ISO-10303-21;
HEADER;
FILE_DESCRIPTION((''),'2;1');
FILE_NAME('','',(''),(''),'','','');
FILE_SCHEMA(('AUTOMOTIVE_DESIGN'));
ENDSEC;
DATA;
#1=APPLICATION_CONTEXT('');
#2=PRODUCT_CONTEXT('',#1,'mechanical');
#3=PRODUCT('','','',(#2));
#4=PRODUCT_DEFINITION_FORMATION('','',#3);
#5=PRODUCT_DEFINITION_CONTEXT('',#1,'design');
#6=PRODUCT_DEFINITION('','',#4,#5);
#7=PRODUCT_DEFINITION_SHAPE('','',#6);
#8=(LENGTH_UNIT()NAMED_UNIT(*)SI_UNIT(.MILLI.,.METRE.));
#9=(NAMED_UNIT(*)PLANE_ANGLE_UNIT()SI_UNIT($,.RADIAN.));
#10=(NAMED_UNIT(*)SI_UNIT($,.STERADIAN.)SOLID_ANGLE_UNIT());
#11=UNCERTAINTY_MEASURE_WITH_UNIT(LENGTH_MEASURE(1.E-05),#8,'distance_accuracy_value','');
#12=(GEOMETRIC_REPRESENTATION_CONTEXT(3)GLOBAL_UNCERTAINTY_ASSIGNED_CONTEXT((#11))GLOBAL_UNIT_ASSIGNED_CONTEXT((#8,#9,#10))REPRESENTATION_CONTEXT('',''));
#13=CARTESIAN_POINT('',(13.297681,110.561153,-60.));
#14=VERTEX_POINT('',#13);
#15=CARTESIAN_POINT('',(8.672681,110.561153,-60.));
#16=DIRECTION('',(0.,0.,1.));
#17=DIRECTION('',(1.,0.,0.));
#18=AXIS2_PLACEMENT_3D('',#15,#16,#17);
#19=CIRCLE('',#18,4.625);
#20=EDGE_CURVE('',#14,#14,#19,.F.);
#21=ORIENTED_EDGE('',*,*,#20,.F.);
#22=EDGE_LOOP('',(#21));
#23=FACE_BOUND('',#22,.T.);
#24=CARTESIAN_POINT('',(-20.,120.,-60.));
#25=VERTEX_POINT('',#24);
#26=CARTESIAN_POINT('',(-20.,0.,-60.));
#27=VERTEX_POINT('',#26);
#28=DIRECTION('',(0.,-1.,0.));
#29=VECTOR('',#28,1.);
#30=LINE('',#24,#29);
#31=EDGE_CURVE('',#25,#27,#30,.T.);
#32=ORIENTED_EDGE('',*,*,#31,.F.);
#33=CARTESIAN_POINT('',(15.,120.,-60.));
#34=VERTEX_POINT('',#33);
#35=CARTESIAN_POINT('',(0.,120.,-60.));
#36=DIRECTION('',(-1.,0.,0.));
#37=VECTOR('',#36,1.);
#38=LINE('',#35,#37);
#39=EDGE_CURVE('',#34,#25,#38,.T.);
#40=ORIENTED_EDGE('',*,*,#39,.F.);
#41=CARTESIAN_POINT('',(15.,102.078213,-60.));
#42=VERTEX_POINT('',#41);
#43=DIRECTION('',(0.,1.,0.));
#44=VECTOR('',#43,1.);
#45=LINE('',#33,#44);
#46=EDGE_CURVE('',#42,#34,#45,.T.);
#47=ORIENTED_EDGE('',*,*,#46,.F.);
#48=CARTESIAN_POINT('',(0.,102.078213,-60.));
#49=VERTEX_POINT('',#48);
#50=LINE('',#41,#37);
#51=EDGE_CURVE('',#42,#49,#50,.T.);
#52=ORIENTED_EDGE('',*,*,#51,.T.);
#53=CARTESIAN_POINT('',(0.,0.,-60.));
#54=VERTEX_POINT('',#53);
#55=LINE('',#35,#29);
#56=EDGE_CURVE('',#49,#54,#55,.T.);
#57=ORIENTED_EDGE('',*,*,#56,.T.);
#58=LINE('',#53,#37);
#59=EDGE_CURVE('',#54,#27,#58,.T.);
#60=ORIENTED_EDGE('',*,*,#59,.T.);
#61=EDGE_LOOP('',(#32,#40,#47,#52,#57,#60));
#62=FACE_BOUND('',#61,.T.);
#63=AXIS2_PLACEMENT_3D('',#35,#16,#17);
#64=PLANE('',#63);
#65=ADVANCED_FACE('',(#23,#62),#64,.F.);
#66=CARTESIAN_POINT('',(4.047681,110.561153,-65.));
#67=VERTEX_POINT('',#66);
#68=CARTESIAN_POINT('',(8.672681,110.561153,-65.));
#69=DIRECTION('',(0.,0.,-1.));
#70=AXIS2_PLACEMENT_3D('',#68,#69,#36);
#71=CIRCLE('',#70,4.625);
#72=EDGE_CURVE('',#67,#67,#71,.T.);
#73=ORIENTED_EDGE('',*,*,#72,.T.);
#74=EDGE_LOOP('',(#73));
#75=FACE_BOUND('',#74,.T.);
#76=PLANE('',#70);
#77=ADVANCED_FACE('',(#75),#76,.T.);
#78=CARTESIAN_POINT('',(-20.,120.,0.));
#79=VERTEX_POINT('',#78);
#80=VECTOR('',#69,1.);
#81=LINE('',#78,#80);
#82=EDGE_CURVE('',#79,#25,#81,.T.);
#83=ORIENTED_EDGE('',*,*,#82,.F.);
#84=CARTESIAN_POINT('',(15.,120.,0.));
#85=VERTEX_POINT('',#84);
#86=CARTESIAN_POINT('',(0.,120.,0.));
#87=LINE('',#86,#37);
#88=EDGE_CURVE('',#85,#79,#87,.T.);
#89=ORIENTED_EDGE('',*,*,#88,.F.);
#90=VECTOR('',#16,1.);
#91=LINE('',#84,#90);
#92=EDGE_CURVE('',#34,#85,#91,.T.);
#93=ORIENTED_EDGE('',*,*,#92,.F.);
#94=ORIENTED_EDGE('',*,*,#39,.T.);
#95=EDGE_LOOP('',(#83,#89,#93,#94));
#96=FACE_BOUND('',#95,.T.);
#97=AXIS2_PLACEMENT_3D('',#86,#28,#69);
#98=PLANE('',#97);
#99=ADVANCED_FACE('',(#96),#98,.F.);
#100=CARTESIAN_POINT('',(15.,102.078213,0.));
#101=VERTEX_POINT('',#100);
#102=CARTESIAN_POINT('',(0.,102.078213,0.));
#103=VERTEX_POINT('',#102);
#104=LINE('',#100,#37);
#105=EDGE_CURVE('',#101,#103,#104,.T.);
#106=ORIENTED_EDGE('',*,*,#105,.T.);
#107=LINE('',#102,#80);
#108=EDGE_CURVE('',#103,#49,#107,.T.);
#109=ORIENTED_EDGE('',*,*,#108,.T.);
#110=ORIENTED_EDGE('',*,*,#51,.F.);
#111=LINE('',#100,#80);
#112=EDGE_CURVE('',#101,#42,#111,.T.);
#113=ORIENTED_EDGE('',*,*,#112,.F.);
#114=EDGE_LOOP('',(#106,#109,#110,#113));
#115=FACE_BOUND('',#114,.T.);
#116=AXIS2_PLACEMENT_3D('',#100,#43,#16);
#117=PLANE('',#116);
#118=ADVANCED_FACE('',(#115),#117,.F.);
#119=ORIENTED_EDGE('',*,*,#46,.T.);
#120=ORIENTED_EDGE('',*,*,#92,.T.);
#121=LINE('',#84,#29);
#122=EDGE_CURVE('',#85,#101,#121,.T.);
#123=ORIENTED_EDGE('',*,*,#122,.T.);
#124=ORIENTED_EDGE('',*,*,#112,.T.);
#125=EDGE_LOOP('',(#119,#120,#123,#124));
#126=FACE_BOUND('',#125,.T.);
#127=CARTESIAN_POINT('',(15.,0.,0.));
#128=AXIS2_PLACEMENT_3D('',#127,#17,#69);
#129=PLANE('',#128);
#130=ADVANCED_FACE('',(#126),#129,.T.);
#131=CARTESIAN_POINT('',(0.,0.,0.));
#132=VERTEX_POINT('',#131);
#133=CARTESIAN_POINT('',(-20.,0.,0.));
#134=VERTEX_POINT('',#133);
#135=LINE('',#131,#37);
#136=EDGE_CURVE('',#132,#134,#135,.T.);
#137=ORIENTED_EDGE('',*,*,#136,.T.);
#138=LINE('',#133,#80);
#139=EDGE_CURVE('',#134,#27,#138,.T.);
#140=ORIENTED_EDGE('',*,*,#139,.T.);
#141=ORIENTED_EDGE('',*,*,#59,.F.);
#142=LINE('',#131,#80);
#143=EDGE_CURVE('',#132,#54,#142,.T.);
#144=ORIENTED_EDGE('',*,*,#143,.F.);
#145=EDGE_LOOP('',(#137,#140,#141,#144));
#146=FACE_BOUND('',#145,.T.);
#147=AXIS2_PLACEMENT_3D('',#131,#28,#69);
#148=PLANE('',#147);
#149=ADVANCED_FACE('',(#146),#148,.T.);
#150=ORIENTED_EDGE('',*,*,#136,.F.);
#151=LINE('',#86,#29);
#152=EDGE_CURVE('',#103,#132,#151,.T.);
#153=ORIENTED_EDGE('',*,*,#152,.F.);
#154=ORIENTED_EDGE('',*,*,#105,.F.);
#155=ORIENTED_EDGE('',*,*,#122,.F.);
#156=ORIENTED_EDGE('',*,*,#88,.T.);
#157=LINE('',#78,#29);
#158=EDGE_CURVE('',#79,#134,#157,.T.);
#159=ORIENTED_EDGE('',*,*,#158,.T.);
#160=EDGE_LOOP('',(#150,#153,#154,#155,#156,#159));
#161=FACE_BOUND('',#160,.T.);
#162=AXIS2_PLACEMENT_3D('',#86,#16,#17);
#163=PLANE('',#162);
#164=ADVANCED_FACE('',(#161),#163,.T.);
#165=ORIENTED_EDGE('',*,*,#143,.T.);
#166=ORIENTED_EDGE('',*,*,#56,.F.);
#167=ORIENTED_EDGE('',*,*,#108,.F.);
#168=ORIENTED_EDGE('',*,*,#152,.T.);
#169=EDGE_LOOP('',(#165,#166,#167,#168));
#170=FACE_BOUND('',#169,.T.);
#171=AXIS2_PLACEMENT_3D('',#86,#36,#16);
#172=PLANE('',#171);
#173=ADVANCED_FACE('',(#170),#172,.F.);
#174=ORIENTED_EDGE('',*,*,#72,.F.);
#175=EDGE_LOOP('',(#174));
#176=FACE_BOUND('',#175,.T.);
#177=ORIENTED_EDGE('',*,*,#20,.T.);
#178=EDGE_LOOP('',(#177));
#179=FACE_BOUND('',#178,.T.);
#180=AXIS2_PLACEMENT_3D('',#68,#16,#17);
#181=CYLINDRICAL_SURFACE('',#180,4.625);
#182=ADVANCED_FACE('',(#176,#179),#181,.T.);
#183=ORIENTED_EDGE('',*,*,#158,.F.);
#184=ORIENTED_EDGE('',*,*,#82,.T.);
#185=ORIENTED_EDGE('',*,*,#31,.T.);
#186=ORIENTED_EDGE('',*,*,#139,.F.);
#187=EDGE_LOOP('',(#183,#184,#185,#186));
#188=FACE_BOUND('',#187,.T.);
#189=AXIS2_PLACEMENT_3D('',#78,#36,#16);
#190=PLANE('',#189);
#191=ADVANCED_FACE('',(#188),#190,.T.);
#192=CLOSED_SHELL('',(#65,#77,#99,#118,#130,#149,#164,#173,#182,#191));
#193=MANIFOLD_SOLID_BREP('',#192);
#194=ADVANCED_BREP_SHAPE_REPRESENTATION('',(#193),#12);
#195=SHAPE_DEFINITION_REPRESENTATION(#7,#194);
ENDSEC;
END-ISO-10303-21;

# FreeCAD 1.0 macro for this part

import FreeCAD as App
import Part
import Sketcher

V = App.Vector


def add_polygon(sketch, points):
    """Adds a closed chain of lines whose ends are joined by coincident constraints."""
    first, n = sketch.GeometryCount, len(points)
    for a, b in zip(points, points[1:] + points[:1]):
        sketch.addGeometry(Part.LineSegment(App.Vector(*a, 0), App.Vector(*b, 0)), False)
    for i in range(n):
        sketch.addConstraint(Sketcher.Constraint("Coincident", first + i, 2, first + (i + 1) % n, 1))

doc = App.newDocument("Part")
body = doc.addObject("PartDesign::Body", "Body")

sketch1 = doc.addObject("Sketcher::SketchObject", "Sketch")
body.addObject(sketch1)
sketch1.AttachmentSupport = (doc.XZ_Plane, [""])
sketch1.MapMode = "FlatFace"
add_polygon(sketch1, [(-20, -60), (-20, 0), (0, 0), (0, -60)])
sketch1.addConstraint([
    Sketcher.Constraint("Vertical", 0),
    Sketcher.Constraint("Horizontal", 1),
    Sketcher.Constraint("Vertical", 2),
    Sketcher.Constraint("Horizontal", 3),
    Sketcher.Constraint("Coincident", 1, 2, -1, 1),
    Sketcher.Constraint("DistanceX", 1, 1, 1, 2, 20.0),
    Sketcher.Constraint("DistanceY", 0, 1, 0, 2, 60.0),
])
pad1 = doc.addObject("PartDesign::Pad", "Pad")
body.addObject(pad1)
pad1.Profile = sketch1
pad1.Length = 120
pad1.Reversed = True

sketch2 = doc.addObject("Sketcher::SketchObject", "Sketch001")
body.addObject(sketch2)
sketch2.AttachmentSupport = (doc.YZ_Plane, [""])
sketch2.MapMode = "FlatFace"
add_polygon(sketch2, [(120, 0), (102, 0), (102, -60), (120, -60)])
sketch2.addConstraint([
    Sketcher.Constraint("Horizontal", 0),
    Sketcher.Constraint("Vertical", 1),
    Sketcher.Constraint("Horizontal", 2),
    Sketcher.Constraint("Vertical", 3),
    Sketcher.Constraint("PointOnObject", 0, 2, -1),
    Sketcher.Constraint("DistanceY", 1, 2, 1, 1, 60.0),
    Sketcher.Constraint("DistanceX", -1, 1, 2, 2, 120.0),
    Sketcher.Constraint("DistanceX", 0, 2, 0, 1, 17.921787),
])
pad2 = doc.addObject("PartDesign::Pad", "Pad001")
body.addObject(pad2)
pad2.Profile = sketch2
pad2.Length = 15

sketch3 = doc.addObject("Sketcher::SketchObject", "Sketch002")
body.addObject(sketch3)
sketch3.AttachmentSupport = (doc.XY_Plane, [""])
sketch3.MapMode = "FlatFace"
sketch3.AttachmentOffset = App.Placement(V(0, 0, -60), App.Rotation())
sketch3.addGeometry(Part.Circle(V(8.7, 110.6, 0), V(0, 0, 1), 4.6), False)
sketch3.addConstraint([
    Sketcher.Constraint("Diameter", 0, 9.25),
    Sketcher.Constraint("DistanceX", -1, 1, 0, 3, 8.672681),
    Sketcher.Constraint("DistanceY", -1, 1, 0, 3, 110.561153),
])
pad3 = doc.addObject("PartDesign::Pad", "Pad002")
body.addObject(pad3)
pad3.Profile = sketch3
pad3.Length = 5
pad3.Reversed = True

doc.recompute()
